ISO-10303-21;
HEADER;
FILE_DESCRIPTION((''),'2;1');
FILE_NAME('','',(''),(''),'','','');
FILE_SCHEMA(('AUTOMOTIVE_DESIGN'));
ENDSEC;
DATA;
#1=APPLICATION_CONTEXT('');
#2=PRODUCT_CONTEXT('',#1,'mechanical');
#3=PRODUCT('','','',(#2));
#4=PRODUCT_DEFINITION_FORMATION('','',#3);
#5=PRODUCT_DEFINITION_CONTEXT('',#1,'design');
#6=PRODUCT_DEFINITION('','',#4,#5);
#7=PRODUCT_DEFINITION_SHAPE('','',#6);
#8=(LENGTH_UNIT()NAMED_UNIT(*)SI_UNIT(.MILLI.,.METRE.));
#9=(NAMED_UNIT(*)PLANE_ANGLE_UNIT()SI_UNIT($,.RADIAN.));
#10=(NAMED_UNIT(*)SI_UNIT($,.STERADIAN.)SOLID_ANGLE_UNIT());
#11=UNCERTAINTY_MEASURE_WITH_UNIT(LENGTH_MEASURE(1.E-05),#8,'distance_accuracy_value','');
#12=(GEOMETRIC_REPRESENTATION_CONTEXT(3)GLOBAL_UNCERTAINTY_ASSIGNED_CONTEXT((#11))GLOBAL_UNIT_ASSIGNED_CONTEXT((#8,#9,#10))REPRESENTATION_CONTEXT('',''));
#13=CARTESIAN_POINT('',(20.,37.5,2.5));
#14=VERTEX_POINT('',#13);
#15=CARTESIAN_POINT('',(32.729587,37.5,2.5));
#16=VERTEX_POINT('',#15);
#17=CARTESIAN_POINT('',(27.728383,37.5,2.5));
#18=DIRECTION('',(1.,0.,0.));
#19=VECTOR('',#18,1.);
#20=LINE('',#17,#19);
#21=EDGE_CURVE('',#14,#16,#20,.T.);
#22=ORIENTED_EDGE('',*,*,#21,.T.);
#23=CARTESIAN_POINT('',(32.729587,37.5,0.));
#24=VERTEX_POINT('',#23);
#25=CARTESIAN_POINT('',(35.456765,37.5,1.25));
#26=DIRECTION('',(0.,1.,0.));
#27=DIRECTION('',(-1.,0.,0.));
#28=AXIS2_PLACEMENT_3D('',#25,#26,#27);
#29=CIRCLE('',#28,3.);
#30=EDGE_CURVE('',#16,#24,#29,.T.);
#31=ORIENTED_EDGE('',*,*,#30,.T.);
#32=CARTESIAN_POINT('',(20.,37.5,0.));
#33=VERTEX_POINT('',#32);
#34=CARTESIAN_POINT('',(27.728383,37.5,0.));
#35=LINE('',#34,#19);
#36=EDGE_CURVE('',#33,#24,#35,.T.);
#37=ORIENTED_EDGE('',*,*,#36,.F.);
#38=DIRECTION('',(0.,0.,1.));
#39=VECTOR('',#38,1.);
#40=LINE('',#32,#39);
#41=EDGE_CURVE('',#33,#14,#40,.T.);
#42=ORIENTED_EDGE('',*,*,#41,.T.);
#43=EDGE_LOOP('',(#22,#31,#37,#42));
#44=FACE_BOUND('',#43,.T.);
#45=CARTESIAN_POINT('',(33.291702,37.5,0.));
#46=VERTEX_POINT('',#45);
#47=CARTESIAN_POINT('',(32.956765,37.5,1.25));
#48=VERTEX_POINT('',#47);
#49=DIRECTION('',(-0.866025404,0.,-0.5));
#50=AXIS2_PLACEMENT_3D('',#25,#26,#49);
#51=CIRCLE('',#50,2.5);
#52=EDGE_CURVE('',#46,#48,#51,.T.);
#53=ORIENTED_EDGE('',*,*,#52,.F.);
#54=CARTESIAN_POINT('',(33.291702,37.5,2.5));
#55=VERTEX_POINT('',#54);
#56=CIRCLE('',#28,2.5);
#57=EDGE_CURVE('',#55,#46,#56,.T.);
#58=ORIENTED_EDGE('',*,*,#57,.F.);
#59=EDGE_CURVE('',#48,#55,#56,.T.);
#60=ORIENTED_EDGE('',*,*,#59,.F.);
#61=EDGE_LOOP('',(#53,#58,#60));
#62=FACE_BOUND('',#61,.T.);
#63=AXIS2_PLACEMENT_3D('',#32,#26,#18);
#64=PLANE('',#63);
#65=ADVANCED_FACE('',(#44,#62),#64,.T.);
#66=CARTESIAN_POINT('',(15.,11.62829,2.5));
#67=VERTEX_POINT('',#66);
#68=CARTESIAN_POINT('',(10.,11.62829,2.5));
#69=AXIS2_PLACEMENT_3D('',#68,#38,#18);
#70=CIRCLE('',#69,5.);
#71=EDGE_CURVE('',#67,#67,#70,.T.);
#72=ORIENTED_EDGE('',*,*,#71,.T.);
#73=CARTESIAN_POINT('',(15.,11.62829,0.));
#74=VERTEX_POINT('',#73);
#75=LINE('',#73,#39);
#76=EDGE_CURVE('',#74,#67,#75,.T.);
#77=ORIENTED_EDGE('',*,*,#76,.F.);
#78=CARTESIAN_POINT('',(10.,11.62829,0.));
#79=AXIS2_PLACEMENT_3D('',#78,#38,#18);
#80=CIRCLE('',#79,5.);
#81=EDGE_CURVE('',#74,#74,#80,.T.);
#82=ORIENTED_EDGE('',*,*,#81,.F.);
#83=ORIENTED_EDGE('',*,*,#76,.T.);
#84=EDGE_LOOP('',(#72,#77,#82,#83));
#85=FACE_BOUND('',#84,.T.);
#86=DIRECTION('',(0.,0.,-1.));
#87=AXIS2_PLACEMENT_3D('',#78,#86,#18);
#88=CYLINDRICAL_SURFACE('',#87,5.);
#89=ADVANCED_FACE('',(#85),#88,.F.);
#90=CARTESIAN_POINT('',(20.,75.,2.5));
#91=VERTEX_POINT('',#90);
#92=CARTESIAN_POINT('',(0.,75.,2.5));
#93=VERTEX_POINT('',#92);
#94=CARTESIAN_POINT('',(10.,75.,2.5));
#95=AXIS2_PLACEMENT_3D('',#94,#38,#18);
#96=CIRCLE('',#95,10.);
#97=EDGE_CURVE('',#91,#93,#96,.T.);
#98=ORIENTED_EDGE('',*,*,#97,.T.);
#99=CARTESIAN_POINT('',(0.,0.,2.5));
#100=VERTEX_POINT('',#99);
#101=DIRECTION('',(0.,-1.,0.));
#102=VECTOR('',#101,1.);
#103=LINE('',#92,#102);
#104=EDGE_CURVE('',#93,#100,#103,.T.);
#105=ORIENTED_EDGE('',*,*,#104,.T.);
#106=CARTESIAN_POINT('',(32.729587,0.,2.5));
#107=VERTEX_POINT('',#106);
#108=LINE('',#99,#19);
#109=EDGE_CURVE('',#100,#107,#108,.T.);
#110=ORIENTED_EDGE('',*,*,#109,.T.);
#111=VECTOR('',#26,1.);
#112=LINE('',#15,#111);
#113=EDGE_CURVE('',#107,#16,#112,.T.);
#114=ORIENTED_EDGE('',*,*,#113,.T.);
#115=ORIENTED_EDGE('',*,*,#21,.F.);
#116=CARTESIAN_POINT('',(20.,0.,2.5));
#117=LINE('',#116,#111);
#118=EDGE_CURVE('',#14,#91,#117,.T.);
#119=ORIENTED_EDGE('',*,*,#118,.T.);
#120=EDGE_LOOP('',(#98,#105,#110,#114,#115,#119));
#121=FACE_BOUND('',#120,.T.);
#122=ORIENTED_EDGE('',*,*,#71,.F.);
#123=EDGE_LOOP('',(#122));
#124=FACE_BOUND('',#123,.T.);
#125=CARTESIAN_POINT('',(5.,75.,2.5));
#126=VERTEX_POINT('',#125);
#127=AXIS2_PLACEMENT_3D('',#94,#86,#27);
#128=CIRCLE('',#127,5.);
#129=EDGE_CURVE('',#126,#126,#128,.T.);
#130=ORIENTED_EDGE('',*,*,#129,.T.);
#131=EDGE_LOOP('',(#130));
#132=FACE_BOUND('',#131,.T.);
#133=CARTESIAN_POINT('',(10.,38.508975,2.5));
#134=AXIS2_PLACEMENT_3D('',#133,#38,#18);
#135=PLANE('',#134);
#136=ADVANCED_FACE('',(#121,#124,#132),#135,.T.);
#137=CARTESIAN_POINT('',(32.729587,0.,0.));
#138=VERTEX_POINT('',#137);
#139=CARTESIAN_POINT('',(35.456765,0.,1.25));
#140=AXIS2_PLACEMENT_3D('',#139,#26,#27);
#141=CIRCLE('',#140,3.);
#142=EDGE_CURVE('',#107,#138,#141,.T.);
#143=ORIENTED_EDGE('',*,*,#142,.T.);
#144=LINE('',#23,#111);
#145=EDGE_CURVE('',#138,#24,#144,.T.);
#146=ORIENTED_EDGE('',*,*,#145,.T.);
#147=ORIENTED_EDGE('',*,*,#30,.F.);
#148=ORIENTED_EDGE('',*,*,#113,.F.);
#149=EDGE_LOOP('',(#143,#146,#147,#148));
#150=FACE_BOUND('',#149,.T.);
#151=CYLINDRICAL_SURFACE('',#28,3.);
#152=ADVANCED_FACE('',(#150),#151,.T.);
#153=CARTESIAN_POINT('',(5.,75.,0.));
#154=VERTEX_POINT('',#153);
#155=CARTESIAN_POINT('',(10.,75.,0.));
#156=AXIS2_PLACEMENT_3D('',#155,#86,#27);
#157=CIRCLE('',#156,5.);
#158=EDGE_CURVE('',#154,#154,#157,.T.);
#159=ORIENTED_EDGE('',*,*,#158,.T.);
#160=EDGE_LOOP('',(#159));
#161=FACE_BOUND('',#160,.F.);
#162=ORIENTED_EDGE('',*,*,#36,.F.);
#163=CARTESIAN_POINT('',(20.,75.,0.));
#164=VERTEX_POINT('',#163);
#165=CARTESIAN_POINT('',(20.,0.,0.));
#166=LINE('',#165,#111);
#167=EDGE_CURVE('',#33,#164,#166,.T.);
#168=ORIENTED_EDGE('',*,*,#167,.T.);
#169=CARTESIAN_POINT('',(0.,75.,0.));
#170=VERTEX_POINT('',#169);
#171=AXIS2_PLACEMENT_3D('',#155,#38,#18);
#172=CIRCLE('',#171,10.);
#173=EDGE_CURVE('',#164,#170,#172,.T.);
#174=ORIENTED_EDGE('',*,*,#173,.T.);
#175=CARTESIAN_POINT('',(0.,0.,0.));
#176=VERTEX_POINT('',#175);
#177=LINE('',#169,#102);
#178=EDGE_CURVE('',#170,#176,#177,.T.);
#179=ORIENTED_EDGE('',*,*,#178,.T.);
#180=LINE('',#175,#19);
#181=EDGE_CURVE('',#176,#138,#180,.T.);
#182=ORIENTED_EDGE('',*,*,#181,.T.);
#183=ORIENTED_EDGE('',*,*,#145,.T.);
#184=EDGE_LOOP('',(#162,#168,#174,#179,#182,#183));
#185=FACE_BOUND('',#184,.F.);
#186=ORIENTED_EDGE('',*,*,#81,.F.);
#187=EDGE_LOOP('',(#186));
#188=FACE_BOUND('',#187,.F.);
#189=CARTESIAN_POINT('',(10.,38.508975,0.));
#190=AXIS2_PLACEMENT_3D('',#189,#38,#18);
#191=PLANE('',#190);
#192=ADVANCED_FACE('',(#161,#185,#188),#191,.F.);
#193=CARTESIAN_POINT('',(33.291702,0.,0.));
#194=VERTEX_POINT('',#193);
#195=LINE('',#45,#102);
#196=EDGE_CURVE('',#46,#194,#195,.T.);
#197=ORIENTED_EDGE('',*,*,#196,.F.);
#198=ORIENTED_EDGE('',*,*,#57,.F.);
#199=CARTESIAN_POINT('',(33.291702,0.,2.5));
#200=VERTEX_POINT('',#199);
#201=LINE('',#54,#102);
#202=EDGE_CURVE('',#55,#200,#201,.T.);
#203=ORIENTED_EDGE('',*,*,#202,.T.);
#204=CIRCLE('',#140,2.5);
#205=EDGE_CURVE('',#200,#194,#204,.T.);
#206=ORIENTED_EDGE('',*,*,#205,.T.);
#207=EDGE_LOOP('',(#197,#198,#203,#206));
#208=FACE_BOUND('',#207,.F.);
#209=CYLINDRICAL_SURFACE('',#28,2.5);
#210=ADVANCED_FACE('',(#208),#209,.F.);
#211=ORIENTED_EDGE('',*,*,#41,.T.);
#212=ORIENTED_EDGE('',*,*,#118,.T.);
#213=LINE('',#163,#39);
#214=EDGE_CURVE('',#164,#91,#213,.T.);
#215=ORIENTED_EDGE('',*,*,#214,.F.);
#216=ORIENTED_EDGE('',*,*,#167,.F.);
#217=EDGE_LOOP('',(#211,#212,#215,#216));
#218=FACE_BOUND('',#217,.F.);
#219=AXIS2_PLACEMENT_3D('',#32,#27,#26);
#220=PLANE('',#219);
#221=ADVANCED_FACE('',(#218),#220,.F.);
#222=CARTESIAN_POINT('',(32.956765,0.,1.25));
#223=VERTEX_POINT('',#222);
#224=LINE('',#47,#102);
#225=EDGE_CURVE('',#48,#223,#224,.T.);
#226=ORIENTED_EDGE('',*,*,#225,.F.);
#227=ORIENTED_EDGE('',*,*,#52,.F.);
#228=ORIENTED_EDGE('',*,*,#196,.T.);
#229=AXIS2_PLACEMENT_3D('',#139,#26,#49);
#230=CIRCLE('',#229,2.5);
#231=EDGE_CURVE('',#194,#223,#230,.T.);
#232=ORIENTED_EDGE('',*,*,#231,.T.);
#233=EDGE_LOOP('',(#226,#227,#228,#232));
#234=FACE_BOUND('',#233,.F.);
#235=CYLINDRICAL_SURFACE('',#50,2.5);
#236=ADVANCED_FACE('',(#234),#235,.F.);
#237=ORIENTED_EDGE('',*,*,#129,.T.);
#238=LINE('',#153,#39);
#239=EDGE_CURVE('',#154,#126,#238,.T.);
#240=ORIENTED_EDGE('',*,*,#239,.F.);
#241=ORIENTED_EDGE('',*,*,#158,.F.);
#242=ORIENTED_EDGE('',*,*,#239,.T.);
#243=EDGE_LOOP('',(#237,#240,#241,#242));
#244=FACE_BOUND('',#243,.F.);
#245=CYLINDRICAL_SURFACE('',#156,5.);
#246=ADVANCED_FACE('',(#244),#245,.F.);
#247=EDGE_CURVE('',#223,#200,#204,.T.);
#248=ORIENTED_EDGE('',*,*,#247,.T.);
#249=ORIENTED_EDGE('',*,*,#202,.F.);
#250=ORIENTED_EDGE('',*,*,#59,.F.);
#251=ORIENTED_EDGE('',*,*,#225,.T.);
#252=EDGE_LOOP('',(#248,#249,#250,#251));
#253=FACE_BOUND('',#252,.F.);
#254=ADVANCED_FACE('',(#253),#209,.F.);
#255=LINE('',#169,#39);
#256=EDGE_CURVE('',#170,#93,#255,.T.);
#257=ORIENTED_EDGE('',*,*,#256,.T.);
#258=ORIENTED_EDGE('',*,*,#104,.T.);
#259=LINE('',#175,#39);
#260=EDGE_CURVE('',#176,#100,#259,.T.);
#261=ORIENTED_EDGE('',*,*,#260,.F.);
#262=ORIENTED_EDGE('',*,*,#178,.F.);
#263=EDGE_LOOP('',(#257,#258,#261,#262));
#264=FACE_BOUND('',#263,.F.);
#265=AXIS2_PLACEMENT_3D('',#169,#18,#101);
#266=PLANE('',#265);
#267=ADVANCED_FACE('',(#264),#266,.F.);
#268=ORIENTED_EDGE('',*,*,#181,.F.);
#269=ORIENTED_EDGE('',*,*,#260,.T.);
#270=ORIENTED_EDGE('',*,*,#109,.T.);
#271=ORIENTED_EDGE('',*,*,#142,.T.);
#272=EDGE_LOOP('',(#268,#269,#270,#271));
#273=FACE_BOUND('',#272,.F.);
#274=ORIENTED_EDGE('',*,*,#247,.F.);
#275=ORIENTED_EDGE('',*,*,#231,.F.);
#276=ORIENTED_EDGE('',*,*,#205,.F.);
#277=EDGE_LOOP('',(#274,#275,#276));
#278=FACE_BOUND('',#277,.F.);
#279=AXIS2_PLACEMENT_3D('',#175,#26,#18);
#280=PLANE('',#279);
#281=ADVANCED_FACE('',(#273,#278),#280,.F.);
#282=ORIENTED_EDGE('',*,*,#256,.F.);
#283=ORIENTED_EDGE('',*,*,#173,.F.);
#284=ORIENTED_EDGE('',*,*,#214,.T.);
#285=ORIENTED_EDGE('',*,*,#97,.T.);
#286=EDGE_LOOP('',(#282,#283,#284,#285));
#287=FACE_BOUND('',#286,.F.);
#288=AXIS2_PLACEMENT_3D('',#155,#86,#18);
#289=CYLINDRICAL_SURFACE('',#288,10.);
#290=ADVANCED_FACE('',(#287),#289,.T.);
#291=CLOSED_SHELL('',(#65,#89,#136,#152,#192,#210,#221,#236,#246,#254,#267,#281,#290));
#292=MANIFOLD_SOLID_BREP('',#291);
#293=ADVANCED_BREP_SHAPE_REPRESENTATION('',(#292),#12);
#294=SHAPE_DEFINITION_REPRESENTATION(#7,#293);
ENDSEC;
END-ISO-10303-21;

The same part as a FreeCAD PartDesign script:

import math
import FreeCAD as App
import Part
import Sketcher
Q = App.Units.Quantity

doc = App.newDocument("Part")
body = doc.addObject("PartDesign::Body", "Body")

# Sketch on XY plane
sketch1 = body.newObject("Sketcher::SketchObject", "Sketch")
sketch1.AttachmentSupport = (doc.getObject("XY_Plane"), [""])
sketch1.MapMode = "FlatFace"
sketch1.addGeometry(Part.LineSegment(App.Vector(0, 75, 0), App.Vector(0, 0, 0)), False)
sketch1.addGeometry(Part.LineSegment(App.Vector(0, 0, 0), App.Vector(35.456765, 0, 0)), False)
sketch1.addGeometry(Part.LineSegment(App.Vector(35.456765, 0, 0), App.Vector(35.456765, 37.5, 0)), False)
sketch1.addGeometry(Part.LineSegment(App.Vector(35.456765, 37.5, 0), App.Vector(20, 37.5, 0)), False)
sketch1.addGeometry(Part.LineSegment(App.Vector(20, 37.5, 0), App.Vector(20, 75, 0)), False)
sketch1.addGeometry(Part.ArcOfCircle(Part.Circle(App.Vector(10, 75, 0), App.Vector(0, 0, 1), 10), math.radians(0), math.radians(180)), False)
sketch1.addGeometry(Part.Circle(App.Vector(10, 11.62829, 0), App.Vector(0, 0, 1), 5), False)
sketch1.addGeometry(Part.Circle(App.Vector(10, 75, 0), App.Vector(0, 0, 1), 5), False)
sketch1.addConstraint(Sketcher.Constraint("Coincident", 0, 2, 1, 1))
sketch1.addConstraint(Sketcher.Constraint("Coincident", 1, 2, 2, 1))
sketch1.addConstraint(Sketcher.Constraint("Coincident", 2, 2, 3, 1))
sketch1.addConstraint(Sketcher.Constraint("Coincident", 3, 2, 4, 1))
sketch1.addConstraint(Sketcher.Constraint("Tangent", 4, 2, 5, 1))
sketch1.addConstraint(Sketcher.Constraint("Tangent", 5, 2, 0, 1))
sketch1.addConstraint(Sketcher.Constraint("Vertical", 0))
sketch1.addConstraint(Sketcher.Constraint("Horizontal", 1))
sketch1.addConstraint(Sketcher.Constraint("Vertical", 2))
sketch1.addConstraint(Sketcher.Constraint("Horizontal", 3))
sketch1.addConstraint(Sketcher.Constraint("Vertical", 4))
sketch1.addConstraint(Sketcher.Constraint("Coincident", 0, 2, -1, 1))
sketch1.addConstraint(Sketcher.Constraint("Coincident", 7, 3, 5, 3))
sketch1.addConstraint(Sketcher.Constraint("Equal", 6, 7))
sketch1.addConstraint(Sketcher.Constraint("Vertical", 5, 3, 6, 3))
sketch1.addConstraint(Sketcher.Constraint("Equal", 2, 4))
sketch1.addConstraint(Sketcher.Constraint("Diameter", 6, Q("10 mm")))
sketch1.addConstraint(Sketcher.Constraint("Radius", 5, Q("10 mm")))
sketch1.addConstraint(Sketcher.Constraint("DistanceY", 0, 2, 0, 1, Q("75 mm")))
sketch1.addConstraint(Sketcher.Constraint("DistanceX", 1, 1, 1, 2, Q("35.456765 mm")))
sketch1.addConstraint(Sketcher.Constraint("DistanceY", -1, 1, 6, 3, Q("11.62829 mm")))
pad1 = body.newObject("PartDesign::Pad", "Pad")
pad1.Profile = sketch1
pad1.Length = 2.5

# Sketch on XZ plane
sketch2 = body.newObject("Sketcher::SketchObject", "Sketch001")
sketch2.AttachmentSupport = (doc.getObject("XZ_Plane"), [""])
sketch2.MapMode = "FlatFace"
sketch2.AttachmentOffset = App.Placement(App.Vector(0, 0, -37.5), App.Rotation())
sketch2.addGeometry(Part.ArcOfCircle(Part.Circle(App.Vector(35.456765, 1.25, 0), App.Vector(0, 0, 1), 2.5), math.radians(150), math.radians(180)), False)
sketch2.addGeometry(Part.LineSegment(App.Vector(33.291702, 2.5, 0), App.Vector(35.456765, 2.5, 0)), False)
sketch2.addGeometry(Part.LineSegment(App.Vector(35.456765, 2.5, 0), App.Vector(35.456765, 0, 0)), False)
sketch2.addGeometry(Part.LineSegment(App.Vector(35.456765, 0, 0), App.Vector(33.291702, 0, 0)), False)
sketch2.addGeometry(Part.ArcOfCircle(Part.Circle(App.Vector(35.456765, 1.25, 0), App.Vector(0, 0, 1), 2.5), math.radians(180), math.radians(210)), False)
sketch2.addConstraint(Sketcher.Constraint("Coincident", 0, 1, 1, 1))
sketch2.addConstraint(Sketcher.Constraint("Coincident", 1, 2, 2, 1))
sketch2.addConstraint(Sketcher.Constraint("Coincident", 2, 2, 3, 1))
sketch2.addConstraint(Sketcher.Constraint("Coincident", 3, 2, 4, 2))
sketch2.addConstraint(Sketcher.Constraint("Tangent", 4, 1, 0, 2))
sketch2.addConstraint(Sketcher.Constraint("Horizontal", 1))
sketch2.addConstraint(Sketcher.Constraint("Vertical", 2))
sketch2.addConstraint(Sketcher.Constraint("Horizontal", 3))
sketch2.addConstraint(Sketcher.Constraint("Equal", 0, 4))
sketch2.addConstraint(Sketcher.Constraint("PointOnObject", 2, 2, -1))
sketch2.addConstraint(Sketcher.Constraint("Horizontal", 0, 3, 4, 1))
sketch2.addConstraint(Sketcher.Constraint("Vertical", 4, 3, 1, 2))
sketch2.addConstraint(Sketcher.Constraint("Vertical", 0, 1, 3, 2))
sketch2.addConstraint(Sketcher.Constraint("Radius", 0, Q("2.5 mm")))
sketch2.addConstraint(Sketcher.Constraint("DistanceY", 2, 2, 2, 1, Q("2.5 mm")))
sketch2.addConstraint(Sketcher.Constraint("DistanceX", -1, 1, 0, 1, Q("33.291702 mm")))
pocket1 = body.newObject("PartDesign::Pocket", "Pocket")
pocket1.Profile = sketch2
pocket1.Type = "ThroughAll"
pocket1.Reversed = True

# Sketch on XZ plane
sketch3 = body.newObject("Sketcher::SketchObject", "Sketch002")
sketch3.AttachmentSupport = (doc.getObject("XZ_Plane"), [""])
sketch3.MapMode = "FlatFace"
sketch3.AttachmentOffset = App.Placement(App.Vector(0, 0, -37.5), App.Rotation())
sketch3.addGeometry(Part.Circle(App.Vector(35.456765, 1.25, 0), App.Vector(0, 0, 1), 3), False)
sketch3.addGeometry(Part.Circle(App.Vector(35.456765, 1.25, 0), App.Vector(0, 0, 1), 2.5), False)
sketch3.addConstraint(Sketcher.Constraint("Coincident", 1, 3, 0, 3))
sketch3.addConstraint(Sketcher.Constraint("Diameter", 0, Q("6 mm")))
sketch3.addConstraint(Sketcher.Constraint("Diameter", 1, Q("5 mm")))
sketch3.addConstraint(Sketcher.Constraint("DistanceY", -1, 1, 0, 3, Q("1.25 mm")))
sketch3.addConstraint(Sketcher.Constraint("DistanceX", -1, 1, 0, 3, Q("35.456765 mm")))
pad2 = body.newObject("PartDesign::Pad", "Pad001")
pad2.Profile = sketch3
pad2.Length = 37.5

doc.recompute()
